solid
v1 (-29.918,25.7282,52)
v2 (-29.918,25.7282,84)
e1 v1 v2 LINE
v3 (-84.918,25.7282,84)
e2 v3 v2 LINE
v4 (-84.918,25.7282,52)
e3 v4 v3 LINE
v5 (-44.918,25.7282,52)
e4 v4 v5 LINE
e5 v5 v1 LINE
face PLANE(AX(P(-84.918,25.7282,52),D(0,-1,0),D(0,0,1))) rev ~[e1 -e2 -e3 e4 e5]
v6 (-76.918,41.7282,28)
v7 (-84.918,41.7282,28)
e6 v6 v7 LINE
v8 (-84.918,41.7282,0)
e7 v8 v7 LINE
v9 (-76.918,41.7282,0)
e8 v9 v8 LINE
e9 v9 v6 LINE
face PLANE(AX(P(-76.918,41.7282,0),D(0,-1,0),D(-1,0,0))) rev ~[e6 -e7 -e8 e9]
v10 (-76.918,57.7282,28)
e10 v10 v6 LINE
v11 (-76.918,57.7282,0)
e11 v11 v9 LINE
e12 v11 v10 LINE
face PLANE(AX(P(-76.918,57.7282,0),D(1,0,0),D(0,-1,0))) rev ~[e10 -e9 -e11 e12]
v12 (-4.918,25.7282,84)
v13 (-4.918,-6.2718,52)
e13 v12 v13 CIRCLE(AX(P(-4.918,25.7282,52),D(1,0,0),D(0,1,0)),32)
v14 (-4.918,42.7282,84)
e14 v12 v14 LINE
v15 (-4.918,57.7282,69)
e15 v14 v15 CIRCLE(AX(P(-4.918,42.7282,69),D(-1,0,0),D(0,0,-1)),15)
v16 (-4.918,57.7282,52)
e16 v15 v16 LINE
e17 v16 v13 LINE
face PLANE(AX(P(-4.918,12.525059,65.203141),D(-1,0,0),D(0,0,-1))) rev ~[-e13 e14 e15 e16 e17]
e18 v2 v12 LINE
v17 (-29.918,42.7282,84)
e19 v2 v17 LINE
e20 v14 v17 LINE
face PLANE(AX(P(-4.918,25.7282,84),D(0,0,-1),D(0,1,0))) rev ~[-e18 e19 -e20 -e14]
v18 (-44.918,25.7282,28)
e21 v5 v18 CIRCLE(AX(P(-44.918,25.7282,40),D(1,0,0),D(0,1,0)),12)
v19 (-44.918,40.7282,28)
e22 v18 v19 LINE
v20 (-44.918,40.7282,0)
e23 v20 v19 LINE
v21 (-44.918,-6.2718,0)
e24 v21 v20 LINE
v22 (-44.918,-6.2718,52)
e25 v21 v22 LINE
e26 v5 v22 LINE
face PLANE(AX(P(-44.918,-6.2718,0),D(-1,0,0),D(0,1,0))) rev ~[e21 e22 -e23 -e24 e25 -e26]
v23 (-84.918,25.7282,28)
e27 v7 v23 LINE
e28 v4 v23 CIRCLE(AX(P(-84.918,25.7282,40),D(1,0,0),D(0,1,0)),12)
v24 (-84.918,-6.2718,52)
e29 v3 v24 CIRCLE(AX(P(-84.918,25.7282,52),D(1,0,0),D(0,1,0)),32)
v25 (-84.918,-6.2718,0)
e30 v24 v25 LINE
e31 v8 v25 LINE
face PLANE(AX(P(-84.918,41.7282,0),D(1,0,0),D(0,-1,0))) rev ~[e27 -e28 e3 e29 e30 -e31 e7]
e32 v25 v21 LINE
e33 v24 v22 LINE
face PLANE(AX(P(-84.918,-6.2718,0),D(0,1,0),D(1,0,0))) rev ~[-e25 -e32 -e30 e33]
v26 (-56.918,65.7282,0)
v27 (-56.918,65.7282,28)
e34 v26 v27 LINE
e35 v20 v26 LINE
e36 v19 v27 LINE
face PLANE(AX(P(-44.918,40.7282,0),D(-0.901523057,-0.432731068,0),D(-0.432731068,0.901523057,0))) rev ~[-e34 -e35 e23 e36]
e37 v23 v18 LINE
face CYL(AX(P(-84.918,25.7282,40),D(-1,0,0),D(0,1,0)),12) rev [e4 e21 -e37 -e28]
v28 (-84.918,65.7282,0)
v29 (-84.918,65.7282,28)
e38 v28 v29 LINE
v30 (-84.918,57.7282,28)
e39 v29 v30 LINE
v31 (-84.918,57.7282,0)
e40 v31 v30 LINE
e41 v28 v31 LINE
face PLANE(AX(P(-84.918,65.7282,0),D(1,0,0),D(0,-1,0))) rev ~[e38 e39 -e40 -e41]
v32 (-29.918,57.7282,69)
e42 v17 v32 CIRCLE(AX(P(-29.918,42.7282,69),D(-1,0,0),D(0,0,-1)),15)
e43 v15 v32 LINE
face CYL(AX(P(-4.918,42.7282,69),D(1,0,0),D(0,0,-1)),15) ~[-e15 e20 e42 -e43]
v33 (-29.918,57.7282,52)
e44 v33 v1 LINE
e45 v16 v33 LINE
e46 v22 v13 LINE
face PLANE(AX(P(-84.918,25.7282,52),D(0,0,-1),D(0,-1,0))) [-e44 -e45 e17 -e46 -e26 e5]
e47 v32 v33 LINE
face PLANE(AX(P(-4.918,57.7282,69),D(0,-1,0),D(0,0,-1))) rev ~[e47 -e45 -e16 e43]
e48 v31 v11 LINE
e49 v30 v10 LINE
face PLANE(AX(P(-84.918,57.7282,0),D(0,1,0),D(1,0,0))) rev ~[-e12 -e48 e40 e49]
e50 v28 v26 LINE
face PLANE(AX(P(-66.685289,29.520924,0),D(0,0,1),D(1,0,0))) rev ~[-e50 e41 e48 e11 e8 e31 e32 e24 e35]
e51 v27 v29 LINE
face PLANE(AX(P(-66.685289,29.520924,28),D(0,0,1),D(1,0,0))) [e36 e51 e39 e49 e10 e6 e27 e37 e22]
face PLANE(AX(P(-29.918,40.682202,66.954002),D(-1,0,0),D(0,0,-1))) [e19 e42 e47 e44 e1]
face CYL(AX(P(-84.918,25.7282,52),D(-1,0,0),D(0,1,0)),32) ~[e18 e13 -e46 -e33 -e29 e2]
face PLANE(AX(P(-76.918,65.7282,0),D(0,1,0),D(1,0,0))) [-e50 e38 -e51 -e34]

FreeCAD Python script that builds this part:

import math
import FreeCAD as App
import Part
import Sketcher
Q = App.Units.Quantity

doc = App.newDocument("Part")
body = doc.addObject("PartDesign::Body", "Body")

sketch1 = body.newObject("Sketcher::SketchObject", "Sketch")
sketch1.AttachmentSupport = (doc.getObject("XY_Plane"), [""])
sketch1.MapMode = "FlatFace"
sketch1.addGeometry(Part.LineSegment(App.Vector(-85, 42, 0), App.Vector(-85, -6, 0)), False)
sketch1.addGeometry(Part.LineSegment(App.Vector(-85, -6, 0), App.Vector(-45, -6, 0)), False)
sketch1.addGeometry(Part.LineSegment(App.Vector(-45, -6, 0), App.Vector(-45, 41, 0)), False)
sketch1.addGeometry(Part.LineSegment(App.Vector(-45, 41, 0), App.Vector(-57, 66, 0)), False)
sketch1.addGeometry(Part.LineSegment(App.Vector(-57, 66, 0), App.Vector(-85, 66, 0)), False)
sketch1.addGeometry(Part.LineSegment(App.Vector(-85, 66, 0), App.Vector(-85, 58, 0)), False)
sketch1.addGeometry(Part.LineSegment(App.Vector(-85, 58, 0), App.Vector(-77, 58, 0)), False)
sketch1.addGeometry(Part.LineSegment(App.Vector(-77, 58, 0), App.Vector(-77, 42, 0)), False)
sketch1.addGeometry(Part.LineSegment(App.Vector(-77, 42, 0), App.Vector(-85, 42, 0)), False)
sketch1.addConstraint(Sketcher.Constraint("Coincident", 0, 2, 1, 1))
sketch1.addConstraint(Sketcher.Constraint("Coincident", 1, 2, 2, 1))
sketch1.addConstraint(Sketcher.Constraint("Coincident", 2, 2, 3, 1))
sketch1.addConstraint(Sketcher.Constraint("Coincident", 3, 2, 4, 1))
sketch1.addConstraint(Sketcher.Constraint("Coincident", 4, 2, 5, 1))
sketch1.addConstraint(Sketcher.Constraint("Coincident", 5, 2, 6, 1))
sketch1.addConstraint(Sketcher.Constraint("Coincident", 6, 2, 7, 1))
sketch1.addConstraint(Sketcher.Constraint("Coincident", 7, 2, 8, 1))
sketch1.addConstraint(Sketcher.Constraint("Coincident", 8, 2, 0, 1))
sketch1.addConstraint(Sketcher.Constraint("Vertical", 0))
sketch1.addConstraint(Sketcher.Constraint("Horizontal", 1))
sketch1.addConstraint(Sketcher.Constraint("Vertical", 2))
sketch1.addConstraint(Sketcher.Constraint("Horizontal", 4))
sketch1.addConstraint(Sketcher.Constraint("Vertical", 5))
sketch1.addConstraint(Sketcher.Constraint("Horizontal", 6))
sketch1.addConstraint(Sketcher.Constraint("Vertical", 7))
sketch1.addConstraint(Sketcher.Constraint("Horizontal", 8))
sketch1.addConstraint(Sketcher.Constraint("Vertical", 0, 2, 4, 2))
sketch1.addConstraint(Sketcher.Constraint("Equal", 8, 5))
sketch1.addConstraint(Sketcher.Constraint("DistanceX", 1, 1, 1, 2, Q("40 mm")))
sketch1.addConstraint(Sketcher.Constraint("DistanceX", 4, 2, 4, 1, Q("28 mm")))
sketch1.addConstraint(Sketcher.Constraint("DistanceX", 6, 1, 6, 2, Q("8 mm")))
sketch1.addConstraint(Sketcher.Constraint("DistanceY", 0, 2, 0, 1, Q("48 mm")))
sketch1.addConstraint(Sketcher.Constraint("DistanceY", 2, 1, 2, 2, Q("47 mm")))
sketch1.addConstraint(Sketcher.Constraint("DistanceY", 7, 2, 7, 1, Q("16 mm")))
sketch1.addConstraint(Sketcher.Constraint("DistanceX", 0, 2, -1, 1, Q("84.918 mm")))
sketch1.addConstraint(Sketcher.Constraint("DistanceY", 0, 2, -1, 1, Q("6.2718 mm")))
pad1 = body.newObject("PartDesign::Pad", "Pad")
pad1.Profile = sketch1
pad1.Length = 28

sketch2 = body.newObject("Sketcher::SketchObject", "Sketch001")
sketch2.AttachmentSupport = (doc.getObject("YZ_Plane"), [""])
sketch2.MapMode = "FlatFace"
sketch2.AttachmentOffset = App.Placement(App.Vector(0, 0, -84.918), App.Rotation())
sketch2.addGeometry(Part.LineSegment(App.Vector(-6, 52, 0), App.Vector(26, 52, 0)), False)
sketch2.addGeometry(Part.ArcOfCircle(Part.Circle(App.Vector(26, 40, 0), App.Vector(0, 0, 1), 12), math.radians(90), math.radians(270)), False)
sketch2.addGeometry(Part.LineSegment(App.Vector(26, 28, 0), App.Vector(-6, 28, 0)), False)
sketch2.addGeometry(Part.LineSegment(App.Vector(-6, 28, 0), App.Vector(-6, 52, 0)), False)
sketch2.addConstraint(Sketcher.Constraint("Tangent", 0, 2, 1, 1))
sketch2.addConstraint(Sketcher.Constraint("Tangent", 1, 2, 2, 1))
sketch2.addConstraint(Sketcher.Constraint("Coincident", 2, 2, 3, 1))
sketch2.addConstraint(Sketcher.Constraint("Coincident", 3, 2, 0, 1))
sketch2.addConstraint(Sketcher.Constraint("Horizontal", 0))
sketch2.addConstraint(Sketcher.Constraint("Horizontal", 2))
sketch2.addConstraint(Sketcher.Constraint("Vertical", 3))
sketch2.addConstraint(Sketcher.Constraint("Radius", 1, Q("12 mm")))
sketch2.addConstraint(Sketcher.Constraint("DistanceX", 0, 1, 0, 2, Q("32 mm")))
sketch2.addConstraint(Sketcher.Constraint("DistanceY", -1, 1, 1, 3, Q("40 mm")))
sketch2.addConstraint(Sketcher.Constraint("DistanceX", -1, 1, 1, 3, Q("25.7282 mm")))
pad2 = body.newObject("PartDesign::Pad", "Pad001")
pad2.Profile = sketch2
pad2.Length = 40

sketch3 = body.newObject("Sketcher::SketchObject", "Sketch002")
sketch3.AttachmentSupport = (doc.getObject("YZ_Plane"), [""])
sketch3.MapMode = "FlatFace"
sketch3.AttachmentOffset = App.Placement(App.Vector(0, 0, -84.918), App.Rotation())
sketch3.addGeometry(Part.LineSegment(App.Vector(26, 84, 0), App.Vector(26, 52, 0)), False)
sketch3.addGeometry(Part.LineSegment(App.Vector(26, 52, 0), App.Vector(-6, 52, 0)), False)
sketch3.addGeometry(Part.ArcOfCircle(Part.Circle(App.Vector(26, 52, 0), App.Vector(0, 0, 1), 32), math.radians(90), math.radians(180)), False)
sketch3.addConstraint(Sketcher.Constraint("Coincident", 0, 2, 1, 1))
sketch3.addConstraint(Sketcher.Constraint("Coincident", 1, 2, 2, 2))
sketch3.addConstraint(Sketcher.Constraint("Coincident", 2, 1, 0, 1))
sketch3.addConstraint(Sketcher.Constraint("Vertical", 0))
sketch3.addConstraint(Sketcher.Constraint("Horizontal", 1))
sketch3.addConstraint(Sketcher.Constraint("Coincident", 0, 2, 2, 3))
sketch3.addConstraint(Sketcher.Constraint("Radius", 2, Q("32 mm")))
sketch3.addConstraint(Sketcher.Constraint("DistanceY", -1, 1, 2, 3, Q("52 mm")))
sketch3.addConstraint(Sketcher.Constraint("DistanceX", -1, 1, 2, 3, Q("25.7282 mm")))
pad3 = body.newObject("PartDesign::Pad", "Pad002")
pad3.Profile = sketch3
pad3.Length = 80

sketch4 = body.newObject("Sketcher::SketchObject", "Sketch003")
sketch4.AttachmentSupport = (doc.getObject("YZ_Plane"), [""])
sketch4.MapMode = "FlatFace"
sketch4.AttachmentOffset = App.Placement(App.Vector(0, 0, -4.918), App.Rotation())
sketch4.addGeometry(Part.LineSegment(App.Vector(43, 84, 0), App.Vector(26, 84, 0)), False)
sketch4.addGeometry(Part.LineSegment(App.Vector(26, 84, 0), App.Vector(26, 52, 0)), False)
sketch4.addGeometry(Part.LineSegment(App.Vector(26, 52, 0), App.Vector(58, 52, 0)), False)
sketch4.addGeometry(Part.LineSegment(App.Vector(58, 52, 0), App.Vector(58, 69, 0)), False)
sketch4.addGeometry(Part.ArcOfCircle(Part.Circle(App.Vector(43, 69, 0), App.Vector(0, 0, 1), 15), math.radians(0), math.radians(90)), False)
sketch4.addConstraint(Sketcher.Constraint("Coincident", 0, 2, 1, 1))
sketch4.addConstraint(Sketcher.Constraint("Coincident", 1, 2, 2, 1))
sketch4.addConstraint(Sketcher.Constraint("Coincident", 2, 2, 3, 1))
sketch4.addConstraint(Sketcher.Constraint("Tangent", 3, 2, 4, 1))
sketch4.addConstraint(Sketcher.Constraint("Tangent", 4, 2, 0, 1))
sketch4.addConstraint(Sketcher.Constraint("Horizontal", 0))
sketch4.addConstraint(Sketcher.Constraint("Vertical", 1))
sketch4.addConstraint(Sketcher.Constraint("Horizontal", 2))
sketch4.addConstraint(Sketcher.Constraint("Vertical", 3))
sketch4.addConstraint(Sketcher.Constraint("Equal", 2, 1))
sketch4.addConstraint(Sketcher.Constraint("Radius", 4, Q("15 mm")))
sketch4.addConstraint(Sketcher.Constraint("DistanceX", 0, 2, 0, 1, Q("17 mm")))
sketch4.addConstraint(Sketcher.Constraint("DistanceY", -1, 1, 4, 3, Q("69 mm")))
sketch4.addConstraint(Sketcher.Constraint("DistanceX", -1, 1, 4, 3, Q("42.7282 mm")))
pad4 = body.newObject("PartDesign::Pad", "Pad003")
pad4.Profile = sketch4
pad4.Length = 25
pad4.Reversed = True

doc.recompute()
